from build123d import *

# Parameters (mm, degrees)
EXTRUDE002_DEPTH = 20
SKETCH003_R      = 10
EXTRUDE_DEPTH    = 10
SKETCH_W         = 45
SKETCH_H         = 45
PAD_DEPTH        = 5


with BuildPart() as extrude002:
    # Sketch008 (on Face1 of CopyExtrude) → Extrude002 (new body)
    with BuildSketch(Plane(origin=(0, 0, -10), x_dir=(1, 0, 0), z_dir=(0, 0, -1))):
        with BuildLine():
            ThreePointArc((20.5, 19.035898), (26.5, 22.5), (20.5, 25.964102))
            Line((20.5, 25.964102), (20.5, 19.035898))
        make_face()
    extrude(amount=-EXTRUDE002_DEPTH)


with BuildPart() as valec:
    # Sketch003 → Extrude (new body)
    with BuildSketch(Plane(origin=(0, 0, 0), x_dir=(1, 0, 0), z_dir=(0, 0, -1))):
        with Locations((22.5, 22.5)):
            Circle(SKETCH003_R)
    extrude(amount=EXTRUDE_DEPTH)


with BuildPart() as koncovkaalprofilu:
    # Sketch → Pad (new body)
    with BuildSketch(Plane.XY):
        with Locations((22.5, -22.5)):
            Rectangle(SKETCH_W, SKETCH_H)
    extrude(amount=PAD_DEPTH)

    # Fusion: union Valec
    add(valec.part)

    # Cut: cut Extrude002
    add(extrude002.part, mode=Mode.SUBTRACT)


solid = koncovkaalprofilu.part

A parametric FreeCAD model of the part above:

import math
import FreeCAD as App
import Part
import Sketcher
Q = App.Units.Quantity


def add_polygon(sketch, points):
    """Adds a closed chain of lines whose ends are joined by coincident constraints."""
    first, n = sketch.GeometryCount, len(points)
    for a, b in zip(points, points[1:] + points[:1]):
        sketch.addGeometry(Part.LineSegment(App.Vector(*a, 0), App.Vector(*b, 0)), False)
    for i in range(n):
        sketch.addConstraint(Sketcher.Constraint("Coincident", first + i, 2, first + (i + 1) % n, 1))

doc = App.newDocument("Part")
body = doc.addObject("PartDesign::Body", "Body")

# Sketch on XY plane
sketch1 = body.newObject("Sketcher::SketchObject", "Sketch")
sketch1.AttachmentSupport = (doc.getObject("XY_Plane"), [""])
sketch1.MapMode = "FlatFace"
sketch1.AttachmentOffset = App.Placement(App.Vector(0, 0, -10), App.Rotation())
sketch1.addGeometry(Part.ArcOfCircle(Part.Circle(App.Vector(22.5, -22.5, 0), App.Vector(0, 0, 1), 4), math.radians(-120), math.radians(120)), False)
sketch1.addGeometry(Part.LineSegment(App.Vector(20.5, -26, 0), App.Vector(20.5, -19, 0)), False)
sketch1.addConstraint(Sketcher.Constraint("Coincident", 0, 1, 1, 1))
sketch1.addConstraint(Sketcher.Constraint("Coincident", 1, 2, 0, 2))
sketch1.addConstraint(Sketcher.Constraint("Vertical", 1))
sketch1.addConstraint(Sketcher.Constraint("Radius", 0, Q("4 mm")))
sketch1.addConstraint(Sketcher.Constraint("DistanceX", 0, 1, 0, 3, Q("2 mm")))
sketch1.addConstraint(Sketcher.Constraint("DistanceX", -1, 1, 0, 3, Q("22.5 mm")))
sketch1.addConstraint(Sketcher.Constraint("DistanceY", 0, 3, -1, 1, Q("22.5 mm")))
pad1 = body.newObject("PartDesign::Pad", "Pad")
pad1.Profile = sketch1
pad1.Length = 20
body2 = doc.addObject("PartDesign::Body", "Body001")

# Sketch on XY plane
sketch2 = body2.newObject("Sketcher::SketchObject", "Sketch001")
sketch2.AttachmentSupport = (doc.getObject("XY_Plane001"), [""])
sketch2.MapMode = "FlatFace"
sketch2.addGeometry(Part.Circle(App.Vector(22, -22, 0), App.Vector(0, 0, 1), 10), False)
sketch2.addConstraint(Sketcher.Constraint("Diameter", 0, Q("20 mm")))
sketch2.addConstraint(Sketcher.Constraint("DistanceX", -1, 1, 0, 3, Q("22.5 mm")))
sketch2.addConstraint(Sketcher.Constraint("DistanceY", 0, 3, -1, 1, Q("22.5 mm")))
pad2 = body2.newObject("PartDesign::Pad", "Pad001")
pad2.Profile = sketch2
pad2.Length = 10
pad2.Reversed = True
body3 = doc.addObject("PartDesign::Body", "Body002")

# Sketch on XY plane
sketch3 = body3.newObject("Sketcher::SketchObject", "Sketch002")
sketch3.AttachmentSupport = (doc.getObject("XY_Plane002"), [""])
sketch3.MapMode = "FlatFace"
add_polygon(sketch3, [(0, 0), (0, -45), (45, -45), (45, 0)])  # lines 0-3
sketch3.addConstraint(Sketcher.Constraint("Vertical", 0))
sketch3.addConstraint(Sketcher.Constraint("Horizontal", 1))
sketch3.addConstraint(Sketcher.Constraint("Vertical", 2))
sketch3.addConstraint(Sketcher.Constraint("Horizontal", 3))
sketch3.addConstraint(Sketcher.Constraint("Coincident", 3, 2, -1, 1))
sketch3.addConstraint(Sketcher.Constraint("Equal", 3, 0))
sketch3.addConstraint(Sketcher.Constraint("DistanceX", 1, 1, 1, 2, Q("45 mm")))
pad3 = body3.newObject("PartDesign::Pad", "Pad002")
pad3.Profile = sketch3
pad3.Length = 5
doc.recompute()

boolean = body3.newObject("PartDesign::Boolean", "Boolean")
boolean.Type = "Fuse"
boolean.addObjects([body2])
doc.recompute()

boolean2 = body3.newObject("PartDesign::Boolean", "Boolean001")
boolean2.Type = "Cut"
boolean2.addObjects([body])

doc.recompute()
